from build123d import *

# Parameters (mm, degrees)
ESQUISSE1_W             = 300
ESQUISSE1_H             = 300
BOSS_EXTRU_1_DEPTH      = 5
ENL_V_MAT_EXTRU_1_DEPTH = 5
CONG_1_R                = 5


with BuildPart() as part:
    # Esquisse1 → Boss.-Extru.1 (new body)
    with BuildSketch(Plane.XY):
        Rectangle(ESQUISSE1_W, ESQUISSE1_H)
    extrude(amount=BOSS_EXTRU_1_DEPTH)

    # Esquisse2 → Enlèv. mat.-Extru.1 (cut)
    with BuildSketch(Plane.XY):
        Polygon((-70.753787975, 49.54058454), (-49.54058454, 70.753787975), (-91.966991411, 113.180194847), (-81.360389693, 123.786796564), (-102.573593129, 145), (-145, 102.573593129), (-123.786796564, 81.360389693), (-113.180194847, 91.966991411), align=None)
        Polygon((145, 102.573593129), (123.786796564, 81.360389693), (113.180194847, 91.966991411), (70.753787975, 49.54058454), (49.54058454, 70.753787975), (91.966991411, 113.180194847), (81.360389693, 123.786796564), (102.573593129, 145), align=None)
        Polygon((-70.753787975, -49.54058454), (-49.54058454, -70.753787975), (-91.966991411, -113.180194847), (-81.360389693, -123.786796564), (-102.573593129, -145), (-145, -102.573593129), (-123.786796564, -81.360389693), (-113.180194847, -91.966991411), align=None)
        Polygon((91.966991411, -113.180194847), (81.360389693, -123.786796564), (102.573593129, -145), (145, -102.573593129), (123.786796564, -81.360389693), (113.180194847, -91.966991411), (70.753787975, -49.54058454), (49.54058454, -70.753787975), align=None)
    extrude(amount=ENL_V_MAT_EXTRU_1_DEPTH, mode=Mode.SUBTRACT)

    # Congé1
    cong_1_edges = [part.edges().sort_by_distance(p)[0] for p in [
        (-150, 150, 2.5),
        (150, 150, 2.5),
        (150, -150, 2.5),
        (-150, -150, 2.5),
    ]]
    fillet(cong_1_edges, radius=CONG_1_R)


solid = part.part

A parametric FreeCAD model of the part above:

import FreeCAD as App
import Part
import Sketcher
from FreeCAD import Vector
Q = App.Units.Quantity


def edges_at(feature, points):
    """Names of the edges that pass closest to the given points."""
    edges = feature.Shape.Edges
    near = lambda p: min(range(len(edges)), key=lambda i: edges[i].distToShape(Part.Vertex(*p))[0])
    return sorted({f"Edge{near(p) + 1}" for p in points})

doc = App.newDocument("Part")
body = doc.addObject("PartDesign::Body", "Body")

sketch1 = body.newObject("Sketcher::SketchObject", "Sketch")
sketch1.AttachmentSupport = (doc.getObject("XY_Plane"), [""])
sketch1.MapMode = "FlatFace"
sketch1.addGeometry([
    Part.LineSegment(Vector(-150, 150, 0), Vector(-150, -150, 0)),
    Part.LineSegment(Vector(-150, -150, 0), Vector(150, -150, 0)),
    Part.LineSegment(Vector(150, -150, 0), Vector(150, 150, 0)),
    Part.LineSegment(Vector(150, 150, 0), Vector(-150, 150, 0)),
], False)
sketch1.addConstraint([
    Sketcher.Constraint("Coincident", 0, 2, 1, 1),
    Sketcher.Constraint("Coincident", 1, 2, 2, 1),
    Sketcher.Constraint("Coincident", 2, 2, 3, 1),
    Sketcher.Constraint("Coincident", 3, 2, 0, 1),
    Sketcher.Constraint("Vertical", 0),
    Sketcher.Constraint("Horizontal", 1),
    Sketcher.Constraint("Vertical", 2),
    Sketcher.Constraint("Horizontal", 3),
    Sketcher.Constraint("Symmetric", 0, 2, 2, 2, -1, 1),
    Sketcher.Constraint("Equal", 3, 0),
    Sketcher.Constraint("DistanceX", 1, 1, 1, 2, Q("300 mm")),
])
pad1 = body.newObject("PartDesign::Pad", "Pad")
pad1.Profile = sketch1
pad1.Length = 5

sketch2 = body.newObject("Sketcher::SketchObject", "Sketch001")
sketch2.AttachmentSupport = (doc.getObject("XY_Plane"), [""])
sketch2.MapMode = "FlatFace"
sketch2.addGeometry([
    Part.LineSegment(Vector(-70.753788, 49.540585, 0), Vector(-49.540585, 70.753788, 0)),
    Part.LineSegment(Vector(-49.540585, 70.753788, 0), Vector(-91.966991, 113.180195, 0)),
    Part.LineSegment(Vector(-91.966991, 113.180195, 0), Vector(-81.36039, 123.786797, 0)),
    Part.LineSegment(Vector(-81.36039, 123.786797, 0), Vector(-102.573593, 145, 0)),
    Part.LineSegment(Vector(-102.573593, 145, 0), Vector(-145, 102.573593, 0)),
    Part.LineSegment(Vector(-145, 102.573593, 0), Vector(-123.786797, 81.36039, 0)),
    Part.LineSegment(Vector(-123.786797, 81.36039, 0), Vector(-113.180195, 91.966991, 0)),
    Part.LineSegment(Vector(-113.180195, 91.966991, 0), Vector(-70.753788, 49.540585, 0)),
    Part.LineSegment(Vector(123.786797, 81.36039, 0), Vector(145, 102.573593, 0)),
    Part.LineSegment(Vector(145, 102.573593, 0), Vector(102.573593, 145, 0)),
    Part.LineSegment(Vector(102.573593, 145, 0), Vector(81.36039, 123.786797, 0)),
    Part.LineSegment(Vector(81.36039, 123.786797, 0), Vector(91.966991, 113.180195, 0)),
    Part.LineSegment(Vector(91.966991, 113.180195, 0), Vector(49.540585, 70.753788, 0)),
    Part.LineSegment(Vector(49.540585, 70.753788, 0), Vector(70.753788, 49.540585, 0)),
    Part.LineSegment(Vector(70.753788, 49.540585, 0), Vector(113.180195, 91.966991, 0)),
    Part.LineSegment(Vector(113.180195, 91.966991, 0), Vector(123.786797, 81.36039, 0)),
    Part.LineSegment(Vector(-49.540585, -70.753788, 0), Vector(-70.753788, -49.540585, 0)),
    Part.LineSegment(Vector(-70.753788, -49.540585, 0), Vector(-113.180195, -91.966991, 0)),
    Part.LineSegment(Vector(-113.180195, -91.966991, 0), Vector(-123.786797, -81.36039, 0)),
    Part.LineSegment(Vector(-123.786797, -81.36039, 0), Vector(-145, -102.573593, 0)),
    Part.LineSegment(Vector(-145, -102.573593, 0), Vector(-102.573593, -145, 0)),
    Part.LineSegment(Vector(-102.573593, -145, 0), Vector(-81.36039, -123.786797, 0)),
    Part.LineSegment(Vector(-81.36039, -123.786797, 0), Vector(-91.966991, -113.180195, 0)),
    Part.LineSegment(Vector(-91.966991, -113.180195, 0), Vector(-49.540585, -70.753788, 0)),
    Part.LineSegment(Vector(91.966991, -113.180195, 0), Vector(81.36039, -123.786797, 0)),
    Part.LineSegment(Vector(81.36039, -123.786797, 0), Vector(102.573593, -145, 0)),
    Part.LineSegment(Vector(102.573593, -145, 0), Vector(145, -102.573593, 0)),
    Part.LineSegment(Vector(145, -102.573593, 0), Vector(123.786797, -81.36039, 0)),
    Part.LineSegment(Vector(123.786797, -81.36039, 0), Vector(113.180195, -91.966991, 0)),
    Part.LineSegment(Vector(113.180195, -91.966991, 0), Vector(70.753788, -49.540585, 0)),
    Part.LineSegment(Vector(70.753788, -49.540585, 0), Vector(49.540585, -70.753788, 0)),
    Part.LineSegment(Vector(49.540585, -70.753788, 0), Vector(91.966991, -113.180195, 0)),
], False)
sketch2.addConstraint([
    Sketcher.Constraint("Coincident", 0, 2, 1, 1),
    Sketcher.Constraint("Coincident", 1, 2, 2, 1),
    Sketcher.Constraint("Coincident", 2, 2, 3, 1),
    Sketcher.Constraint("Coincident", 3, 2, 4, 1),
    Sketcher.Constraint("Coincident", 4, 2, 5, 1),
    Sketcher.Constraint("Coincident", 5, 2, 6, 1),
    Sketcher.Constraint("Coincident", 6, 2, 7, 1),
    Sketcher.Constraint("Coincident", 7, 2, 0, 1),
    Sketcher.Constraint("Coincident", 8, 2, 9, 1),
    Sketcher.Constraint("Coincident", 9, 2, 10, 1),
    Sketcher.Constraint("Coincident", 10, 2, 11, 1),
    Sketcher.Constraint("Coincident", 11, 2, 12, 1),
    Sketcher.Constraint("Coincident", 12, 2, 13, 1),
    Sketcher.Constraint("Coincident", 13, 2, 14, 1),
    Sketcher.Constraint("Coincident", 14, 2, 15, 1),
    Sketcher.Constraint("Coincident", 15, 2, 8, 1),
    Sketcher.Constraint("Coincident", 16, 2, 17, 1),
    Sketcher.Constraint("Coincident", 17, 2, 18, 1),
    Sketcher.Constraint("Coincident", 18, 2, 19, 1),
    Sketcher.Constraint("Coincident", 19, 2, 20, 1),
    Sketcher.Constraint("Coincident", 20, 2, 21, 1),
    Sketcher.Constraint("Coincident", 21, 2, 22, 1),
    Sketcher.Constraint("Coincident", 22, 2, 23, 1),
    Sketcher.Constraint("Coincident", 23, 2, 16, 1),
    Sketcher.Constraint("Coincident", 24, 2, 25, 1),
    Sketcher.Constraint("Coincident", 25, 2, 26, 1),
    Sketcher.Constraint("Coincident", 26, 2, 27, 1),
    Sketcher.Constraint("Coincident", 27, 2, 28, 1),
    Sketcher.Constraint("Coincident", 28, 2, 29, 1),
    Sketcher.Constraint("Coincident", 29, 2, 30, 1),
    Sketcher.Constraint("Coincident", 30, 2, 31, 1),
    Sketcher.Constraint("Coincident", 31, 2, 24, 1),
    Sketcher.Constraint("Symmetric", 13, 2, 16, 2, -1, 1),
    Sketcher.Constraint("Symmetric", 14, 2, 17, 2, -1, 1),
    Sketcher.Constraint("Symmetric", 15, 2, 18, 2, -1, 1),
    Sketcher.Constraint("Symmetric", 8, 2, 19, 2, -1, 1),
    Sketcher.Constraint("Symmetric", 9, 2, 20, 2, -1, 1),
    Sketcher.Constraint("Symmetric", 10, 2, 21, 2, -1, 1),
    Sketcher.Constraint("Symmetric", 11, 2, 22, 2, -1, 1),
    Sketcher.Constraint("Symmetric", 12, 2, 23, 2, -1, 1),
    Sketcher.Constraint("Symmetric", 2, 2, 24, 2, -1, 1),
    Sketcher.Constraint("Symmetric", 3, 2, 25, 2, -1, 1),
    Sketcher.Constraint("Symmetric", 4, 2, 26, 2, -1, 1),
    Sketcher.Constraint("Symmetric", 5, 2, 27, 2, -1, 1),
    Sketcher.Constraint("Symmetric", 6, 2, 28, 2, -1, 1),
    Sketcher.Constraint("Symmetric", 7, 2, 29, 2, -1, 1),
    Sketcher.Constraint("Symmetric", 0, 2, 30, 2, -1, 1),
    Sketcher.Constraint("Symmetric", 1, 2, 31, 2, -1, 1),
    Sketcher.Constraint("Symmetric", 4, 2, 8, 2, -2),
    Sketcher.Constraint("Symmetric", 3, 2, 9, 2, -2),
    Sketcher.Constraint("Symmetric", 2, 2, 10, 2, -2),
    Sketcher.Constraint("Symmetric", 1, 2, 11, 2, -2),
    Sketcher.Constraint("Symmetric", 0, 2, 12, 2, -2),
    Sketcher.Constraint("Symmetric", 7, 2, 13, 2, -2),
    Sketcher.Constraint("Symmetric", 6, 2, 14, 2, -2),
    Sketcher.Constraint("Symmetric", 5, 2, 15, 2, -2),
    Sketcher.Constraint("Perpendicular", 0, 1),
    Sketcher.Constraint("Perpendicular", 1, 2),
    Sketcher.Constraint("Perpendicular", 2, 3),
    Sketcher.Constraint("Perpendicular", 3, 4),
    Sketcher.Constraint("Perpendicular", 4, 5),
    Sketcher.Constraint("Perpendicular", 5, 6),
    Sketcher.Constraint("Perpendicular", 6, 7),
    Sketcher.Constraint("Perpendicular", 7, 8),
    Sketcher.Constraint("Equal", 0, 3),
    Sketcher.Constraint("Equal", 1, 4),
    Sketcher.Constraint("Equal", 3, 5),
    Sketcher.Constraint("Equal", 2, 6),
    Sketcher.Constraint("Distance", 0, Q("30 mm")),
    Sketcher.Constraint("Distance", 1, Q("60 mm")),
    Sketcher.Constraint("DistanceY", -1, 1, 3, 2, Q("145 mm")),
    Sketcher.Constraint("DistanceX", 4, 2, -1, 1, Q("145 mm")),
])
pocket1 = body.newObject("PartDesign::Pocket", "Pocket")
pocket1.Profile = sketch2
pocket1.Length = 5
pocket1.Reversed = True
doc.recompute()

fillet = body.newObject("PartDesign::Fillet", "Fillet")
fillet.Base = (pocket1, edges_at(pocket1, [
    (-150, 150, 2.5),
    (150, 150, 2.5),
    (150, -150, 2.5),
    (-150, -150, 2.5),
]))
fillet.Radius = 5

doc.recompute()
